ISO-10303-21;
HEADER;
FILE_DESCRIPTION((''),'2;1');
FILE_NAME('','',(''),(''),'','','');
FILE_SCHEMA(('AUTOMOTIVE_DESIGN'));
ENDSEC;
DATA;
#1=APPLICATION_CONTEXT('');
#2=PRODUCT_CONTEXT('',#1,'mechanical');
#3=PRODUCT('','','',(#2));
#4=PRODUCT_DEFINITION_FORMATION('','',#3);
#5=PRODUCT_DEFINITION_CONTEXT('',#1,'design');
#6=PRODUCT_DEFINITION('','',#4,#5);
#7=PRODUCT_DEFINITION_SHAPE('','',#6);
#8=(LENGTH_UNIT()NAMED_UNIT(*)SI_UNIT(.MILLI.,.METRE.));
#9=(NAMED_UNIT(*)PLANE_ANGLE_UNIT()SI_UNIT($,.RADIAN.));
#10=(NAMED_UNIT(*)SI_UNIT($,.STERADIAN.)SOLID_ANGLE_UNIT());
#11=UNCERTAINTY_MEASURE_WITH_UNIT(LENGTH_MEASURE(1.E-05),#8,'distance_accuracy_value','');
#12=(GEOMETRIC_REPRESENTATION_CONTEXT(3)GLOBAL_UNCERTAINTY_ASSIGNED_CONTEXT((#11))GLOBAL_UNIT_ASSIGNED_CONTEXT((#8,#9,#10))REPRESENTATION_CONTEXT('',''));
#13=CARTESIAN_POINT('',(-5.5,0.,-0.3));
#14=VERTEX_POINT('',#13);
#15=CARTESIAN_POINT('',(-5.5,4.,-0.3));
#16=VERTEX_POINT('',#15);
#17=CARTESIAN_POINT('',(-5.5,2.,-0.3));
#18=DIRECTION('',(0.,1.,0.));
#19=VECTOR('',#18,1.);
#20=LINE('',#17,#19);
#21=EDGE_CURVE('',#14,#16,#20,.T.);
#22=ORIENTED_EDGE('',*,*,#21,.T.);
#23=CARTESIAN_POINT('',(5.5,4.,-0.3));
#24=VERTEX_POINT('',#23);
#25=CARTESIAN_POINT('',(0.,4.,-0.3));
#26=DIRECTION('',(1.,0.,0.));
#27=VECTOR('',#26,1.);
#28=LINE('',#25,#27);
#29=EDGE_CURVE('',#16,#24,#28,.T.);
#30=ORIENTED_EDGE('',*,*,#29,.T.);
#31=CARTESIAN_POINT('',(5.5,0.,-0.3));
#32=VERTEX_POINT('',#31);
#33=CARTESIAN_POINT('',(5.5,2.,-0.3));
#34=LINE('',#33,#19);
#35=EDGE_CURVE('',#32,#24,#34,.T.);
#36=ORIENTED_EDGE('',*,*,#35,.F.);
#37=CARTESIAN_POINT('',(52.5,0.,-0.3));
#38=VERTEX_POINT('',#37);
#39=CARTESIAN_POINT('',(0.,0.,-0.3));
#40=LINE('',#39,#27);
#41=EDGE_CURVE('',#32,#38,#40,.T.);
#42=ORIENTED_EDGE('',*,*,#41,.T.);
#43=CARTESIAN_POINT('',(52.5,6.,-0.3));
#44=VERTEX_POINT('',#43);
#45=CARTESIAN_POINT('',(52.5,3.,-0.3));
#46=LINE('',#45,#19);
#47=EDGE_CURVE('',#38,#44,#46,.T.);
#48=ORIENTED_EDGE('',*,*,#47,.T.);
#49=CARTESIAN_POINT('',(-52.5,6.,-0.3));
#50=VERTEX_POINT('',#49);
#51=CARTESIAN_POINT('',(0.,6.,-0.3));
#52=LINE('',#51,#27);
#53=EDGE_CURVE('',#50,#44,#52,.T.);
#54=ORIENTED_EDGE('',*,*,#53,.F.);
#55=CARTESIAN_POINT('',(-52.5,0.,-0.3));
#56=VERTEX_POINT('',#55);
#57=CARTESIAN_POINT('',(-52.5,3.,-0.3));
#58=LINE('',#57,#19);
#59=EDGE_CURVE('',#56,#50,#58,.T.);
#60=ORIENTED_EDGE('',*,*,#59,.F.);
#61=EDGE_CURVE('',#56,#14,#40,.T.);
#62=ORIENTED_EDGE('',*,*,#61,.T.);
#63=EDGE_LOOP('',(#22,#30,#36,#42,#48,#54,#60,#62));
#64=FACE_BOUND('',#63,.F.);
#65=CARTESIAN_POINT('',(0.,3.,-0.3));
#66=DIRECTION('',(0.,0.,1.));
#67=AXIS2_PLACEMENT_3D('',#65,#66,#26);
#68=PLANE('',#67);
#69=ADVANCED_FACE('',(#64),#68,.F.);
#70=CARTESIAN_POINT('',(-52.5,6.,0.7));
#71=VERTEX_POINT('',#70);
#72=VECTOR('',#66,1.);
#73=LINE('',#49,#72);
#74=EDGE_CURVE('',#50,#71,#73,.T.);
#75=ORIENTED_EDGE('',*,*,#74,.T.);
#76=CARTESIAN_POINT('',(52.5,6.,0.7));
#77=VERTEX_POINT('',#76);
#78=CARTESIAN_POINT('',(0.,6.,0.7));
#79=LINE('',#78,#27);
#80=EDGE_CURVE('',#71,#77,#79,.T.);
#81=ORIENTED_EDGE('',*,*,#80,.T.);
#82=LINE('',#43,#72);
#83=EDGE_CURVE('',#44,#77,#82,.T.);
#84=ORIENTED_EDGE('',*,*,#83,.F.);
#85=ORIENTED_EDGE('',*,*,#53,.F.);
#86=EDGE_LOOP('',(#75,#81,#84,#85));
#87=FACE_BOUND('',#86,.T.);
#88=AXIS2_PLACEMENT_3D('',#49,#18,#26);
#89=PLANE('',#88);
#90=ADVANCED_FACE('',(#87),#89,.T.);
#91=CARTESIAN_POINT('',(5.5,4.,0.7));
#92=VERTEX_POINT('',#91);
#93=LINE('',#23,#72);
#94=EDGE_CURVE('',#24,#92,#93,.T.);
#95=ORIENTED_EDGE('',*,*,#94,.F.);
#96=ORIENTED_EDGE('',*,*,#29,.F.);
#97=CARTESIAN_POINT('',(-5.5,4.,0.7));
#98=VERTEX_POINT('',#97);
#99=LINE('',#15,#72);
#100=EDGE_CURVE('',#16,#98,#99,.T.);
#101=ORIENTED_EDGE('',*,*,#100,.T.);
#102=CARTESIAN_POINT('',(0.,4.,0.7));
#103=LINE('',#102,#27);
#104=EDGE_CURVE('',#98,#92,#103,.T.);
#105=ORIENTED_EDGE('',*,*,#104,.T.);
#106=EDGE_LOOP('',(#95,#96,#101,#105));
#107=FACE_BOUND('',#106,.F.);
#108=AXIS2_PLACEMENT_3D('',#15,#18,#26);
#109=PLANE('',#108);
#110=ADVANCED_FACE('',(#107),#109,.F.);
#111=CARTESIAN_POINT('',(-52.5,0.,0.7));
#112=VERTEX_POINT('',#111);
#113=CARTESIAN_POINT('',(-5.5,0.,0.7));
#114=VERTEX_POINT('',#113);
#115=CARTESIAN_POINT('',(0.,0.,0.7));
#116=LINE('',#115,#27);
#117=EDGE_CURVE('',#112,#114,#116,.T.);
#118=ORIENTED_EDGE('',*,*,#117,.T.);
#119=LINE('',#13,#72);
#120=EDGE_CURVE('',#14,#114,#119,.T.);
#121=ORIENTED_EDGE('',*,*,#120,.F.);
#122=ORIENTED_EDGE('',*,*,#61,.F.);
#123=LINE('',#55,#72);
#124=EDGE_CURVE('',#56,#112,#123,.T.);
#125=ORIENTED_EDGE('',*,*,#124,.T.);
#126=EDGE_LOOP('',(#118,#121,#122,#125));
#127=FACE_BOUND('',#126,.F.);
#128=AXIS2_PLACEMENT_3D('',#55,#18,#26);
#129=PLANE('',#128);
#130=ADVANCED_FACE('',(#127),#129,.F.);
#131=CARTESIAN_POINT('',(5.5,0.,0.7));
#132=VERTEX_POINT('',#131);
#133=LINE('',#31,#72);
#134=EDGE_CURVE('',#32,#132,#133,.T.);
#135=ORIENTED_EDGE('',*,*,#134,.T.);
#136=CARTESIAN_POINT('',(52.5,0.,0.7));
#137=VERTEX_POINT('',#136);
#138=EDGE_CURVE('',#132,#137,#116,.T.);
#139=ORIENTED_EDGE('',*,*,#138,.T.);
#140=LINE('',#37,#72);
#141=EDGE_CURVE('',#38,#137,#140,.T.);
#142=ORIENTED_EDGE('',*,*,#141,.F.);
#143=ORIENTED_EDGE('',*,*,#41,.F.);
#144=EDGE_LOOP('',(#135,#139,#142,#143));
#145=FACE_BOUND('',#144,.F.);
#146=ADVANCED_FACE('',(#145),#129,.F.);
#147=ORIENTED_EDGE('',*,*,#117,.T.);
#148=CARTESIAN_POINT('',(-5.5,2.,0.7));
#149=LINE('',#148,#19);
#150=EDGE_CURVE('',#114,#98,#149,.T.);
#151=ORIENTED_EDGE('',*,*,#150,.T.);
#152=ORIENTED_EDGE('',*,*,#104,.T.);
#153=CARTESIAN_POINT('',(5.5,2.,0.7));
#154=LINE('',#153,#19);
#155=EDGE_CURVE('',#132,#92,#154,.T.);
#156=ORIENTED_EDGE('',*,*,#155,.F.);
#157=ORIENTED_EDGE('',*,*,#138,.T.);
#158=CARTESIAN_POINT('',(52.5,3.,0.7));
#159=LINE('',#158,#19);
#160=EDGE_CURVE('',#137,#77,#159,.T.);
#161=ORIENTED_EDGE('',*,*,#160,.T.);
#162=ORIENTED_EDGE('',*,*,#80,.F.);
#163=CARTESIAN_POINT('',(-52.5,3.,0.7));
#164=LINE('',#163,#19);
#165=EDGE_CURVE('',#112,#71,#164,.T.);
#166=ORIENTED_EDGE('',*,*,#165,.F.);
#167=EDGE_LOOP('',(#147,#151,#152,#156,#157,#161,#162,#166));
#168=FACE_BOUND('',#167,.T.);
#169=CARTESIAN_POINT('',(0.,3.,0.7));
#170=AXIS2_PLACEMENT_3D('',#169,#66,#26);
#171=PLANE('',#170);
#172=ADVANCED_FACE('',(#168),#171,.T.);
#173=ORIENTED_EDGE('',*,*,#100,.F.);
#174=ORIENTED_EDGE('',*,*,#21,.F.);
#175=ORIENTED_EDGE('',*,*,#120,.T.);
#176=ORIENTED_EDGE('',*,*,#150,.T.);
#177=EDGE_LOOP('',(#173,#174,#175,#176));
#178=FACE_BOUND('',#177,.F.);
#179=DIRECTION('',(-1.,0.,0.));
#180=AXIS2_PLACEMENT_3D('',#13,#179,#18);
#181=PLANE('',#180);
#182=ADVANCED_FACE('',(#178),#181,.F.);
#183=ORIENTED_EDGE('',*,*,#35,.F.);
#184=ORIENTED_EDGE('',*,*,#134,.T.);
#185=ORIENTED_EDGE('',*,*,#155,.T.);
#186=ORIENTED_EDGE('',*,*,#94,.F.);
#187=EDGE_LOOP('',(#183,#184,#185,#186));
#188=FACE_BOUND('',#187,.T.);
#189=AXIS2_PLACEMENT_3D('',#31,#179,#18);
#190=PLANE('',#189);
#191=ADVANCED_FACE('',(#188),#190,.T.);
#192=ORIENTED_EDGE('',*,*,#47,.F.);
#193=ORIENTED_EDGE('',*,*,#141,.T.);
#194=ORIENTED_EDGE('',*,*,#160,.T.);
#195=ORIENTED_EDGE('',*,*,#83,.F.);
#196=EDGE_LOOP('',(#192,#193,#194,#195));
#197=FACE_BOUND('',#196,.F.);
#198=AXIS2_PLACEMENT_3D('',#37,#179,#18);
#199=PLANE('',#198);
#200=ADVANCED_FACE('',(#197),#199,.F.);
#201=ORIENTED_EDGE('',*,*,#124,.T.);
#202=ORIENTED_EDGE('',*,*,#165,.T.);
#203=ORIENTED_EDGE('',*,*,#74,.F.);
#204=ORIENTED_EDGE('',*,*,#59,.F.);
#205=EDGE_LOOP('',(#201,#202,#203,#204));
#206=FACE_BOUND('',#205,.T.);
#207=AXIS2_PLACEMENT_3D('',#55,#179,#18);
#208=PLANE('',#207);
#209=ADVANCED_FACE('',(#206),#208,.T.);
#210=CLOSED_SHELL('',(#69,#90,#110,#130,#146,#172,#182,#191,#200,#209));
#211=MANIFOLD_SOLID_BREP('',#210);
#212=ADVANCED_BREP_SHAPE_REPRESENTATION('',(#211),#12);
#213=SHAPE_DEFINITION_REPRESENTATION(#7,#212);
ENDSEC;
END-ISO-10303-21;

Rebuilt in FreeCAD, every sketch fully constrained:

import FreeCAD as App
import Part
import Sketcher

V = App.Vector
Q = App.Units.Quantity


def add_polygon(sketch, points):
    """Adds a closed chain of lines whose ends are joined by coincident constraints."""
    first, n = sketch.GeometryCount, len(points)
    for a, b in zip(points, points[1:] + points[:1]):
        sketch.addGeometry(Part.LineSegment(App.Vector(*a, 0), App.Vector(*b, 0)), False)
    for i in range(n):
        sketch.addConstraint(Sketcher.Constraint("Coincident", first + i, 2, first + (i + 1) % n, 1))

doc = App.newDocument("Part")
body = doc.addObject("PartDesign::Body", "Body")

sketch1 = body.newObject("Sketcher::SketchObject", "Sketch")
sketch1.AttachmentSupport = (doc.getObject("XY_Plane"), [""])
sketch1.MapMode = "FlatFace"
sketch1.AttachmentOffset = App.Placement(V(0, 0, -0.3), App.Rotation())
add_polygon(sketch1, [(-5.5, 4), (-5.5, 0), (5.5, 0), (5.5, 4)])
sketch1.addConstraint(Sketcher.Constraint("Vertical", 0))
sketch1.addConstraint(Sketcher.Constraint("Horizontal", 1))
sketch1.addConstraint(Sketcher.Constraint("Vertical", 2))
sketch1.addConstraint(Sketcher.Constraint("Horizontal", 3))
sketch1.addConstraint(Sketcher.Constraint("Symmetric", 0, 2, 1, 2, -1, 1))
sketch1.addConstraint(Sketcher.Constraint("DistanceX", 1, 1, 1, 2, Q("11 mm")))
sketch1.addConstraint(Sketcher.Constraint("DistanceY", 0, 2, 0, 1, Q("4 mm")))
pad1 = body.newObject("PartDesign::Pad", "Pad")
pad1.Profile = sketch1
pad1.Length = 1
body2 = doc.addObject("PartDesign::Body", "Body001")

sketch2 = body2.newObject("Sketcher::SketchObject", "Sketch001")
sketch2.AttachmentSupport = (doc.getObject("XY_Plane001"), [""])
sketch2.MapMode = "FlatFace"
sketch2.AttachmentOffset = App.Placement(V(0, 0, -0.3), App.Rotation())
add_polygon(sketch2, [(-52.5, 6), (-52.5, 0), (52.5, 0), (52.5, 6)])
sketch2.addConstraint(Sketcher.Constraint("Vertical", 0))
sketch2.addConstraint(Sketcher.Constraint("Horizontal", 1))
sketch2.addConstraint(Sketcher.Constraint("Vertical", 2))
sketch2.addConstraint(Sketcher.Constraint("Horizontal", 3))
sketch2.addConstraint(Sketcher.Constraint("Symmetric", 0, 2, 1, 2, -1, 1))
sketch2.addConstraint(Sketcher.Constraint("DistanceX", 1, 1, 1, 2, Q("105 mm")))
sketch2.addConstraint(Sketcher.Constraint("DistanceY", 0, 2, 0, 1, Q("6 mm")))
pad2 = body2.newObject("PartDesign::Pad", "Pad001")
pad2.Profile = sketch2
pad2.Length = 1
doc.recompute()

boolean = body2.newObject("PartDesign::Boolean", "Boolean")
boolean.Type = "Cut"
boolean.addObjects([body])

doc.recompute()
